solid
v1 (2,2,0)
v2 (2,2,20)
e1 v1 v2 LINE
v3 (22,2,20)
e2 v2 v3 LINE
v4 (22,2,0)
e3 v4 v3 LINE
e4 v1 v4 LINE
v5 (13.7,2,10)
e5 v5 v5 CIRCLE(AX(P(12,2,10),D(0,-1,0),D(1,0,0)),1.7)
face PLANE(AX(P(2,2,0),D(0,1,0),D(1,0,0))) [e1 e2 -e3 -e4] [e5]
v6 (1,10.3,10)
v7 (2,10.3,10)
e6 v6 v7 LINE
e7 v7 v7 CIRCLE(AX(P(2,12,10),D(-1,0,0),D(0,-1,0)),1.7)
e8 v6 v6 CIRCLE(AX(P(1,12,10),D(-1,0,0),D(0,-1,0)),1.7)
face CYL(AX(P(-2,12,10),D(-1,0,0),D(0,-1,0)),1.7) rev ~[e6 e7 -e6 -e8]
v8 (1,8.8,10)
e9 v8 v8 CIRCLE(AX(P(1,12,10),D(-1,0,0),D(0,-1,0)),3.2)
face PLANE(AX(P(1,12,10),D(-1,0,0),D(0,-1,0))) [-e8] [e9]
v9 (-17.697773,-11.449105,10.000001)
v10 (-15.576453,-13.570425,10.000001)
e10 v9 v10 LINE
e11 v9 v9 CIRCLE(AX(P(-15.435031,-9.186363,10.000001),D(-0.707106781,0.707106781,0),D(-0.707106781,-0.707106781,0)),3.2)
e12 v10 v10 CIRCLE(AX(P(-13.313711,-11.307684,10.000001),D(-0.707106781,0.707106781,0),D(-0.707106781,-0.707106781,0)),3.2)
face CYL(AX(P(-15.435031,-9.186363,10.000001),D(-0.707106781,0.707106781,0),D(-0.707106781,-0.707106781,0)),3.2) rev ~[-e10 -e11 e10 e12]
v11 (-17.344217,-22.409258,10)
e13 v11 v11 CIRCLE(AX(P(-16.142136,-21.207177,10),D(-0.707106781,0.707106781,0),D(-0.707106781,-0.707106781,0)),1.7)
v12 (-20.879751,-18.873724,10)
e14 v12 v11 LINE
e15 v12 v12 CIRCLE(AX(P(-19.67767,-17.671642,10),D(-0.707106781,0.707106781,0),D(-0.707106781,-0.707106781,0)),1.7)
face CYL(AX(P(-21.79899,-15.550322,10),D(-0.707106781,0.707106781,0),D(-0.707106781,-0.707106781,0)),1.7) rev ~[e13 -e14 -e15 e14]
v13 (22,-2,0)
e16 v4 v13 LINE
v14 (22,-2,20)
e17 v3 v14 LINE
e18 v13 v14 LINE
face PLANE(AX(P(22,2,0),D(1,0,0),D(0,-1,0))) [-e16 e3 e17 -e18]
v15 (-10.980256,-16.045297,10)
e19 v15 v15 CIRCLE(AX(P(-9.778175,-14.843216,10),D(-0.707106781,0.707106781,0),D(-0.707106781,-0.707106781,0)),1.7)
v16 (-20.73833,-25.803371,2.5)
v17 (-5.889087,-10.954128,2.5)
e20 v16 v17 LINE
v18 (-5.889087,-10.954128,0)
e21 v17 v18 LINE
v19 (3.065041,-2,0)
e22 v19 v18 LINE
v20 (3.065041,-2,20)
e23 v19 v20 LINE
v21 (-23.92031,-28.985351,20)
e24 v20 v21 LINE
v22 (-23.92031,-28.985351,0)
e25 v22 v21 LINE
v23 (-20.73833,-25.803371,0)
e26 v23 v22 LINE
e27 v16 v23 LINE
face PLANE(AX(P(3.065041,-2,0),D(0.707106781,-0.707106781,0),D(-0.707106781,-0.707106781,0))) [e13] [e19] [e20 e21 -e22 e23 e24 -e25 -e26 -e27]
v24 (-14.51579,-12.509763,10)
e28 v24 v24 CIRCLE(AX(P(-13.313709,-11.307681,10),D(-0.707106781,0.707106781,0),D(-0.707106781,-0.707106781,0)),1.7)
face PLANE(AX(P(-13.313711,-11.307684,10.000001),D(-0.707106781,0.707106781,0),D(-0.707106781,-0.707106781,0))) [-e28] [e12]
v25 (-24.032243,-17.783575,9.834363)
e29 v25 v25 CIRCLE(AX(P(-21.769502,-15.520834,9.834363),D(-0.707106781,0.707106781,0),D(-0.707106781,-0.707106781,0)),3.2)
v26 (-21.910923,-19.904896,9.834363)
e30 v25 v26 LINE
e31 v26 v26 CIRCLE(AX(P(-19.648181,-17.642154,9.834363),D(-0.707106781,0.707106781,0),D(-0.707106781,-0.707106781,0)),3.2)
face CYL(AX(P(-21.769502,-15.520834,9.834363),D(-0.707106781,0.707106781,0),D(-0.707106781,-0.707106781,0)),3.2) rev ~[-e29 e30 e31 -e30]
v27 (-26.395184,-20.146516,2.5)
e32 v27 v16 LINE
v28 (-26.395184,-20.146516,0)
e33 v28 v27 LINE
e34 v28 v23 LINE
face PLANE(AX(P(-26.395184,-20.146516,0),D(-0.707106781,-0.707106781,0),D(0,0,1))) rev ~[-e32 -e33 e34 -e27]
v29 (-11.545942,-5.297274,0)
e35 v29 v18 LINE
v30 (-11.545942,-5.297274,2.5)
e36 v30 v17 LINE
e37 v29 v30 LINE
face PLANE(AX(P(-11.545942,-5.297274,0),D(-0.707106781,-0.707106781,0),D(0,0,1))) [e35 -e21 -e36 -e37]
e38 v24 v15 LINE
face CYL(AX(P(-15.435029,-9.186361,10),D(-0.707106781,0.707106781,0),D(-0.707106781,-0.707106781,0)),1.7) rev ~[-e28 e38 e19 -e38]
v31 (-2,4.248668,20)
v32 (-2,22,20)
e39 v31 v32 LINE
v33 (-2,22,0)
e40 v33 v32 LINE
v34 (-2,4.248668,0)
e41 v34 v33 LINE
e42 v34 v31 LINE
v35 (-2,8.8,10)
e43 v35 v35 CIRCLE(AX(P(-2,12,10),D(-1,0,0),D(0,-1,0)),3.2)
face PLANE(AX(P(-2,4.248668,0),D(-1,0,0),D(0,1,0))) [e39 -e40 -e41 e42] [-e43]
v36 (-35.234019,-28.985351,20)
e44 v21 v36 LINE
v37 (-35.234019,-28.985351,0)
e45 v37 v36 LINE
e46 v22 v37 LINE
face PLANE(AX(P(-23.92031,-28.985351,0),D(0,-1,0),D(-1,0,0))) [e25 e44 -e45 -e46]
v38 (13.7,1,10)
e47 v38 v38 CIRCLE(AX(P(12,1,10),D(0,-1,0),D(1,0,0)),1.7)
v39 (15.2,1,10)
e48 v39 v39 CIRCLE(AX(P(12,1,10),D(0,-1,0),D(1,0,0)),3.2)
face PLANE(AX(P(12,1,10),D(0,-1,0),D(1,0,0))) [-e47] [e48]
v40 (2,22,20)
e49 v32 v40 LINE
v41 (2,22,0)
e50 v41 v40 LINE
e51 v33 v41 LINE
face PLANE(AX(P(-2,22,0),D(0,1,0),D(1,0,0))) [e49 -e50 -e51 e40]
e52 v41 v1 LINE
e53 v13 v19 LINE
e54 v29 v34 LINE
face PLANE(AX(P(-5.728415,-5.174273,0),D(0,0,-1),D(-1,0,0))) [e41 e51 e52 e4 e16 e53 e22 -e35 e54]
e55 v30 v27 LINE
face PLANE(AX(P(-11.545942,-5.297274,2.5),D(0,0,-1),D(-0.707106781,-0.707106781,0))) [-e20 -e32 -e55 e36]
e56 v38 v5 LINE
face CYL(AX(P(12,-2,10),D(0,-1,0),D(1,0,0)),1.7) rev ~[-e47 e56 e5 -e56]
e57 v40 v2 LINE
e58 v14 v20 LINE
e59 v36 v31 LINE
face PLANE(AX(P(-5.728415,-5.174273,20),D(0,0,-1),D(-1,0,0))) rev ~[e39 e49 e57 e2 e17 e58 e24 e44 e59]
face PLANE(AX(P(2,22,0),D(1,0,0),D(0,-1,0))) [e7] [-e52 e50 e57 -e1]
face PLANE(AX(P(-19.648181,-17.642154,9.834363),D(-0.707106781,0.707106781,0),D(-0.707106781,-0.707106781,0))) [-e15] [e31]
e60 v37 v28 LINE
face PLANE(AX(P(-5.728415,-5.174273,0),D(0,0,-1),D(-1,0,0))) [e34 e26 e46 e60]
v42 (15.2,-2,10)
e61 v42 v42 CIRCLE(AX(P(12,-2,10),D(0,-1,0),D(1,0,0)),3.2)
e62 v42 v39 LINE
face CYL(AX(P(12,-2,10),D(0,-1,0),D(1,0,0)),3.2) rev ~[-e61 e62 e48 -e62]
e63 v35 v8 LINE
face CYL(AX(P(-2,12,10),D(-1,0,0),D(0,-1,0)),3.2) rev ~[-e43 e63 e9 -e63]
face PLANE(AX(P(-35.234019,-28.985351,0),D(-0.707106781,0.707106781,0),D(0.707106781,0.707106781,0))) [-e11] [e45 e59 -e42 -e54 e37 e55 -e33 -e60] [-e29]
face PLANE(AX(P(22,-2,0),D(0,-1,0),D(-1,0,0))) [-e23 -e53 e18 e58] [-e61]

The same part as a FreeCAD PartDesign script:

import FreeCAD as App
import Part
import Sketcher

V = App.Vector
Q = App.Units.Quantity


def add_polygon(sketch, points):
    """Adds a closed chain of lines whose ends are joined by coincident constraints."""
    first, n = sketch.GeometryCount, len(points)
    for a, b in zip(points, points[1:] + points[:1]):
        sketch.addGeometry(Part.LineSegment(App.Vector(*a, 0), App.Vector(*b, 0)), False)
    for i in range(n):
        sketch.addConstraint(Sketcher.Constraint("Coincident", first + i, 2, first + (i + 1) % n, 1))

doc = App.newDocument("Part")
params = doc.addObject("Spreadsheet::Sheet", "Params")
for row, (alias, value) in enumerate([
    ("sketch1_width", "4 mm"),
    ("sketch1_width2", "20 mm"),
    ("sketch1_length", "47 mm"),
    ("pad1_length", "20 mm"),
    ("sketch2_diameter", "3.4 mm"),
    ("pocket1_length", "5 mm"),
    ("sketch3_diameter", "3.4 mm"),
    ("pocket2_length", "5 mm"),
    ("sketch4_diameter", "3.4 mm"),
    ("sketch4_width", "21 mm"),
    ("sketch4_height", "2.5 mm"),
    ("pocket3_length", "9 mm"),
    ("sketch5_diameter", "6.4 mm"),
    ("pocket4_length", "3 mm"),
    ("sketch6_diameter", "6.4 mm"),
    ("pocket5_length", "3 mm"),
    ("sketch7_diameter", "6.4 mm"),
    ("pocket6_length", "3 mm"),
], start=1):
    params.set(f"A{row}", alias)
    params.set(f"B{row}", "=" + value)
    params.setAlias(f"B{row}", alias)

body = doc.addObject("PartDesign::Body", "Body")

# Sketch on XY plane
sketch1 = body.newObject("Sketcher::SketchObject", "Sketch")
sketch1.AttachmentSupport = (doc.getObject("XY_Plane"), [""])
sketch1.MapMode = "FlatFace"
add_polygon(sketch1, [(2, 22), (-2, 22), (-2, 4.248668), (-35.234019, -28.985351), (-23.92031, -28.985351), (3.065041, -2), (22, -2), (22, 2), (2, 2)])  # lines 0-8
sketch1.addConstraint([
    Sketcher.Constraint("Horizontal", 0),
    Sketcher.Constraint("Vertical", 1),
    Sketcher.Constraint("Horizontal", 3),
    Sketcher.Constraint("Horizontal", 5),
    Sketcher.Constraint("Vertical", 6),
    Sketcher.Constraint("Horizontal", 7),
    Sketcher.Constraint("Vertical", 8),
    Sketcher.Constraint("Parallel", 2, 4),
    Sketcher.Constraint("Equal", 0, 6),
    Sketcher.Constraint("Equal", 7, 8),
    Sketcher.Constraint("DistanceX", 0, 2, 0, 1, 4.0),
    Sketcher.Constraint("DistanceX", 7, 2, 7, 1, 20.0),
    Sketcher.Constraint("Angle", 2, Q("-135 deg")),
    Sketcher.Constraint("Distance", 2, 47.0),
    Sketcher.Constraint("DistanceX", 0, 2, -1, 1, 2.0),
    Sketcher.Constraint("DistanceY", -1, 1, 0, 2, 22.0),
    Sketcher.Constraint("DistanceX", 3, 1, 3, 2, 11.313709),
    Sketcher.Constraint("DistanceX", 5, 1, 5, 2, 18.934959),
])
sketch1.setExpression("Constraints[19]", "Params.sketch1_width")
sketch1.setExpression("Constraints[20]", "Params.sketch1_width2")
sketch1.setExpression("Constraints[22]", "Params.sketch1_length")
pad1 = body.newObject("PartDesign::Pad", "Pad")
pad1.Profile = sketch1
pad1.setExpression("Length", "Params.pad1_length")

# Sketch on YZ plane
sketch2 = body.newObject("Sketcher::SketchObject", "Sketch001")
sketch2.AttachmentSupport = (doc.getObject("YZ_Plane"), [""])
sketch2.MapMode = "FlatFace"
sketch2.AttachmentOffset = App.Placement(V(0, 0, -2), App.Rotation())
sketch2.addGeometry(Part.Circle(V(12, 10, 0), V(0, 0, 1), 1.7), False)
sketch2.addConstraint([
    Sketcher.Constraint("Diameter", 0, 3.4),
    Sketcher.Constraint("DistanceX", -1, 1, 0, 3, 12.0),
    Sketcher.Constraint("DistanceY", -1, 1, 0, 3, 10.0),
])
sketch2.setExpression("Constraints[0]", "Params.sketch2_diameter")
pocket1 = body.newObject("PartDesign::Pocket", "Pocket")
pocket1.Profile = sketch2
pocket1.setExpression("Length", "Params.pocket1_length")
pocket1.Reversed = True

# Sketch on XZ plane
sketch3 = body.newObject("Sketcher::SketchObject", "Sketch002")
sketch3.AttachmentSupport = (doc.getObject("XZ_Plane"), [""])
sketch3.MapMode = "FlatFace"
sketch3.AttachmentOffset = App.Placement(V(0, 0, 2), App.Rotation())
sketch3.addGeometry(Part.Circle(V(12, 10, 0), V(0, 0, 1), 1.7), False)
sketch3.addConstraint([
    Sketcher.Constraint("Diameter", 0, 3.4),
    Sketcher.Constraint("DistanceX", -1, 1, 0, 3, 12.0),
    Sketcher.Constraint("DistanceY", -1, 1, 0, 3, 10.0),
])
sketch3.setExpression("Constraints[0]", "Params.sketch3_diameter")
pocket2 = body.newObject("PartDesign::Pocket", "Pocket001")
pocket2.Profile = sketch3
pocket2.setExpression("Length", "Params.pocket2_length")

# Sketch on an angled plane
sketch4 = body.newObject("Sketcher::SketchObject", "Sketch003")
sketch4.Placement = App.Placement(V(-3.124334, 3.124334, 0), App.Rotation(V(-0.707106781, -0.707106781, 0), V(0, 0, 0.999999999), V(-0.707106781, 0.707106781, 0), "ZXY"))
sketch4.addGeometry(Part.Circle(V(17.409952, 10, 0), V(0, 0, 1), 1.7), False)  # 0
sketch4.addGeometry(Part.Circle(V(26.409952, 10, 0), V(0, 0, 1), 1.7), False)  # 1
add_polygon(sketch4, [(11.909952, 2.5), (11.909952, 0), (32.909952, 0), (32.909952, 2.5)])  # lines 2-5
sketch4.addConstraint([
    Sketcher.Constraint("Vertical", 2),
    Sketcher.Constraint("Horizontal", 3),
    Sketcher.Constraint("Vertical", 4),
    Sketcher.Constraint("Horizontal", 5),
    Sketcher.Constraint("Equal", 0, 1),
    Sketcher.Constraint("PointOnObject", 2, 2, -1),
    Sketcher.Constraint("Horizontal", 0, 3, 1, 3),
    Sketcher.Constraint("Diameter", 0, 3.4),
    Sketcher.Constraint("DistanceX", 3, 1, 3, 2, 21.0),
    Sketcher.Constraint("DistanceY", 2, 2, 2, 1, 2.5),
    Sketcher.Constraint("DistanceY", -1, 1, 0, 3, 10.0),
    Sketcher.Constraint("DistanceX", 0, 3, 1, 3, 9.0),
    Sketcher.Constraint("DistanceX", 2, 2, 0, 3, 5.5),
    Sketcher.Constraint("DistanceX", -1, 1, 0, 3, 17.409952),
])
sketch4.setExpression("Constraints[11]", "Params.sketch4_diameter")
sketch4.setExpression("Constraints[12]", "Params.sketch4_width")
sketch4.setExpression("Constraints[13]", "Params.sketch4_height")
pocket3 = body.newObject("PartDesign::Pocket", "Pocket002")
pocket3.Profile = sketch4
pocket3.setExpression("Length", "Params.pocket3_length")

# Sketch on YZ plane
sketch5 = body.newObject("Sketcher::SketchObject", "Sketch004")
sketch5.AttachmentSupport = (doc.getObject("YZ_Plane"), [""])
sketch5.MapMode = "FlatFace"
sketch5.AttachmentOffset = App.Placement(V(0, 0, -2), App.Rotation())
sketch5.addGeometry(Part.Circle(V(12, 10, 0), V(0, 0, 1), 3.2), False)
sketch5.addConstraint([
    Sketcher.Constraint("Diameter", 0, 6.4),
    Sketcher.Constraint("DistanceX", -1, 1, 0, 3, 12.0),
    Sketcher.Constraint("DistanceY", -1, 1, 0, 3, 10.0),
])
sketch5.setExpression("Constraints[0]", "Params.sketch5_diameter")
pocket4 = body.newObject("PartDesign::Pocket", "Pocket003")
pocket4.Profile = sketch5
pocket4.setExpression("Length", "Params.pocket4_length")
pocket4.Reversed = True

# Sketch on XZ plane
sketch6 = body.newObject("Sketcher::SketchObject", "Sketch005")
sketch6.AttachmentSupport = (doc.getObject("XZ_Plane"), [""])
sketch6.MapMode = "FlatFace"
sketch6.AttachmentOffset = App.Placement(V(0, 0, 2), App.Rotation())
sketch6.addGeometry(Part.Circle(V(12, 10, 0), V(0, 0, 1), 3.2), False)
sketch6.addConstraint([
    Sketcher.Constraint("Diameter", 0, 6.4),
    Sketcher.Constraint("DistanceX", -1, 1, 0, 3, 12.0),
    Sketcher.Constraint("DistanceY", -1, 1, 0, 3, 10.0),
])
sketch6.setExpression("Constraints[0]", "Params.sketch6_diameter")
pocket5 = body.newObject("PartDesign::Pocket", "Pocket004")
pocket5.Profile = sketch6
pocket5.setExpression("Length", "Params.pocket5_length")

# Sketch on an angled plane
sketch7 = body.newObject("Sketcher::SketchObject", "Sketch006")
sketch7.Placement = App.Placement(V(-3.124334, 3.124334, 0), App.Rotation(V(-0.707106781, -0.707106781, 0), V(0, 0, 0.999999999), V(-0.707106781, 0.707106781, 0), "ZXY"))
sketch7.addGeometry([
    Part.Circle(V(17.409955, 10.000001, 0), V(0, 0, 1), 3.2),
    Part.Circle(V(26.368249, 9.834363, 0), V(0, 0, 1), 3.2),
], False)
sketch7.addConstraint([
    Sketcher.Constraint("Equal", 0, 1),
    Sketcher.Constraint("Diameter", 0, 6.4),
    Sketcher.Constraint("DistanceY", -1, 1, 0, 3, 10.000001),
    Sketcher.Constraint("DistanceX", -1, 1, 1, 3, 26.368249),
    Sketcher.Constraint("DistanceX", -1, 1, 0, 3, 17.409955),
    Sketcher.Constraint("DistanceY", -1, 1, 1, 3, 9.834363),
])
sketch7.setExpression("Constraints[1]", "Params.sketch7_diameter")
pocket6 = body.newObject("PartDesign::Pocket", "Pocket005")
pocket6.Profile = sketch7
pocket6.setExpression("Length", "Params.pocket6_length")

doc.recompute()
